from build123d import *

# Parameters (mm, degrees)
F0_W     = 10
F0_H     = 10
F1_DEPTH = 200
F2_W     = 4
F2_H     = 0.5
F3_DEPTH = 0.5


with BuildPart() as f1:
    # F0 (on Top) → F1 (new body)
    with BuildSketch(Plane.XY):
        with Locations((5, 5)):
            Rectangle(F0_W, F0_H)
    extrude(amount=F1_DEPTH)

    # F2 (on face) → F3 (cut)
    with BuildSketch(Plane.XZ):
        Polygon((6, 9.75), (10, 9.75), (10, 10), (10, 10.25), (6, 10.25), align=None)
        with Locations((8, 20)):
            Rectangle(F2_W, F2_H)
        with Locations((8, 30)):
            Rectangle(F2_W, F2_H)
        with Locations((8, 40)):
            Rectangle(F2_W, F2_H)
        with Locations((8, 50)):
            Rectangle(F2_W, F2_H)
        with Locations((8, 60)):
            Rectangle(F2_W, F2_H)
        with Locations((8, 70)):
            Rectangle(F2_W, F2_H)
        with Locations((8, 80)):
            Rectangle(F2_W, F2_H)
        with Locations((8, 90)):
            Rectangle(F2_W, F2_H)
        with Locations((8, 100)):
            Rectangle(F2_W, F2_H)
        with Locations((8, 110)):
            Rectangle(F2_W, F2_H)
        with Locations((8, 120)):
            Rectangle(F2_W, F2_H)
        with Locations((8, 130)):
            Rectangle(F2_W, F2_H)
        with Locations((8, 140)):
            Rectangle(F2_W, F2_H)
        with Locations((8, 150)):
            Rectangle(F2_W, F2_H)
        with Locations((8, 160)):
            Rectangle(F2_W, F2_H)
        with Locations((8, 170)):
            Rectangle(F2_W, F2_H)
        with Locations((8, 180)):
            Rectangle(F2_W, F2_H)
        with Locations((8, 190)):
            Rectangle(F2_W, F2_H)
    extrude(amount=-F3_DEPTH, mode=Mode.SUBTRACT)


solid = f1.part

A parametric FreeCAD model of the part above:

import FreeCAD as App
import Part
import Sketcher
from FreeCAD import Vector

doc = App.newDocument("Part")
body = doc.addObject("PartDesign::Body", "Body")

sketch1 = body.newObject("Sketcher::SketchObject", "Sketch")
sketch1.AttachmentSupport = (doc.getObject("XY_Plane"), [""])
sketch1.MapMode = "FlatFace"
sketch1.addGeometry([
    Part.LineSegment(Vector(0, 10, 0), Vector(0, 0, 0)),
    Part.LineSegment(Vector(0, 0, 0), Vector(10, 0, 0)),
    Part.LineSegment(Vector(10, 0, 0), Vector(10, 10, 0)),
    Part.LineSegment(Vector(10, 10, 0), Vector(0, 10, 0)),
], False)
sketch1.addConstraint([
    Sketcher.Constraint("Coincident", 0, 2, 1, 1),
    Sketcher.Constraint("Coincident", 1, 2, 2, 1),
    Sketcher.Constraint("Coincident", 2, 2, 3, 1),
    Sketcher.Constraint("Coincident", 3, 2, 0, 1),
    Sketcher.Constraint("Vertical", 0),
    Sketcher.Constraint("Horizontal", 1),
    Sketcher.Constraint("Vertical", 2),
    Sketcher.Constraint("Horizontal", 3),
    Sketcher.Constraint("Coincident", 0, 2, -1, 1),
    Sketcher.Constraint("Equal", 3, 0),
    Sketcher.Constraint("DistanceX", 1, 1, 1, 2, 10.0),
])
pad1 = body.newObject("PartDesign::Pad", "Pad")
pad1.Profile = sketch1
pad1.Length = 200

sketch2 = body.newObject("Sketcher::SketchObject", "Sketch001")
sketch2.AttachmentSupport = (doc.getObject("XZ_Plane"), [""])
sketch2.MapMode = "FlatFace"
sketch2.addGeometry([
    Part.LineSegment(Vector(6, 9.75, 0), Vector(10, 9.75, 0)),
    Part.LineSegment(Vector(10, 9.75, 0), Vector(10, 10.25, 0)),
    Part.LineSegment(Vector(10, 10.25, 0), Vector(6, 10.25, 0)),
    Part.LineSegment(Vector(6, 10.25, 0), Vector(6, 9.75, 0)),
    Part.LineSegment(Vector(6, 20.25, 0), Vector(6, 19.75, 0)),
    Part.LineSegment(Vector(6, 19.75, 0), Vector(10, 19.75, 0)),
    Part.LineSegment(Vector(10, 19.75, 0), Vector(10, 20.25, 0)),
    Part.LineSegment(Vector(10, 20.25, 0), Vector(6, 20.25, 0)),
    Part.LineSegment(Vector(6, 30.25, 0), Vector(6, 29.75, 0)),
    Part.LineSegment(Vector(6, 29.75, 0), Vector(10, 29.75, 0)),
    Part.LineSegment(Vector(10, 29.75, 0), Vector(10, 30.25, 0)),
    Part.LineSegment(Vector(10, 30.25, 0), Vector(6, 30.25, 0)),
    Part.LineSegment(Vector(6, 40.25, 0), Vector(6, 39.75, 0)),
    Part.LineSegment(Vector(6, 39.75, 0), Vector(10, 39.75, 0)),
    Part.LineSegment(Vector(10, 39.75, 0), Vector(10, 40.25, 0)),
    Part.LineSegment(Vector(10, 40.25, 0), Vector(6, 40.25, 0)),
    Part.LineSegment(Vector(6, 50.25, 0), Vector(6, 49.75, 0)),
    Part.LineSegment(Vector(6, 49.75, 0), Vector(10, 49.75, 0)),
    Part.LineSegment(Vector(10, 49.75, 0), Vector(10, 50.25, 0)),
    Part.LineSegment(Vector(10, 50.25, 0), Vector(6, 50.25, 0)),
    Part.LineSegment(Vector(6, 60.25, 0), Vector(6, 59.75, 0)),
    Part.LineSegment(Vector(6, 59.75, 0), Vector(10, 59.75, 0)),
    Part.LineSegment(Vector(10, 59.75, 0), Vector(10, 60.25, 0)),
    Part.LineSegment(Vector(10, 60.25, 0), Vector(6, 60.25, 0)),
    Part.LineSegment(Vector(6, 70.25, 0), Vector(6, 69.75, 0)),
    Part.LineSegment(Vector(6, 69.75, 0), Vector(10, 69.75, 0)),
    Part.LineSegment(Vector(10, 69.75, 0), Vector(10, 70.25, 0)),
    Part.LineSegment(Vector(10, 70.25, 0), Vector(6, 70.25, 0)),
    Part.LineSegment(Vector(6, 80.25, 0), Vector(6, 79.75, 0)),
    Part.LineSegment(Vector(6, 79.75, 0), Vector(10, 79.75, 0)),
    Part.LineSegment(Vector(10, 79.75, 0), Vector(10, 80.25, 0)),
    Part.LineSegment(Vector(10, 80.25, 0), Vector(6, 80.25, 0)),
    Part.LineSegment(Vector(6, 90.25, 0), Vector(6, 89.75, 0)),
    Part.LineSegment(Vector(6, 89.75, 0), Vector(10, 89.75, 0)),
    Part.LineSegment(Vector(10, 89.75, 0), Vector(10, 90.25, 0)),
    Part.LineSegment(Vector(10, 90.25, 0), Vector(6, 90.25, 0)),
    Part.LineSegment(Vector(6, 100.25, 0), Vector(6, 99.75, 0)),
    Part.LineSegment(Vector(6, 99.75, 0), Vector(10, 99.75, 0)),
    Part.LineSegment(Vector(10, 99.75, 0), Vector(10, 100.25, 0)),
    Part.LineSegment(Vector(10, 100.25, 0), Vector(6, 100.25, 0)),
    Part.LineSegment(Vector(6, 110.25, 0), Vector(6, 109.75, 0)),
    Part.LineSegment(Vector(6, 109.75, 0), Vector(10, 109.75, 0)),
    Part.LineSegment(Vector(10, 109.75, 0), Vector(10, 110.25, 0)),
    Part.LineSegment(Vector(10, 110.25, 0), Vector(6, 110.25, 0)),
    Part.LineSegment(Vector(6, 120.25, 0), Vector(6, 119.75, 0)),
    Part.LineSegment(Vector(6, 119.75, 0), Vector(10, 119.75, 0)),
    Part.LineSegment(Vector(10, 119.75, 0), Vector(10, 120.25, 0)),
    Part.LineSegment(Vector(10, 120.25, 0), Vector(6, 120.25, 0)),
    Part.LineSegment(Vector(6, 130.25, 0), Vector(6, 129.75, 0)),
    Part.LineSegment(Vector(6, 129.75, 0), Vector(10, 129.75, 0)),
    Part.LineSegment(Vector(10, 129.75, 0), Vector(10, 130.25, 0)),
    Part.LineSegment(Vector(10, 130.25, 0), Vector(6, 130.25, 0)),
    Part.LineSegment(Vector(6, 140.25, 0), Vector(6, 139.75, 0)),
    Part.LineSegment(Vector(6, 139.75, 0), Vector(10, 139.75, 0)),
    Part.LineSegment(Vector(10, 139.75, 0), Vector(10, 140.25, 0)),
    Part.LineSegment(Vector(10, 140.25, 0), Vector(6, 140.25, 0)),
    Part.LineSegment(Vector(6, 150.25, 0), Vector(6, 149.75, 0)),
    Part.LineSegment(Vector(6, 149.75, 0), Vector(10, 149.75, 0)),
    Part.LineSegment(Vector(10, 149.75, 0), Vector(10, 150.25, 0)),
    Part.LineSegment(Vector(10, 150.25, 0), Vector(6, 150.25, 0)),
    Part.LineSegment(Vector(6, 160.25, 0), Vector(6, 159.75, 0)),
    Part.LineSegment(Vector(6, 159.75, 0), Vector(10, 159.75, 0)),
    Part.LineSegment(Vector(10, 159.75, 0), Vector(10, 160.25, 0)),
    Part.LineSegment(Vector(10, 160.25, 0), Vector(6, 160.25, 0)),
    Part.LineSegment(Vector(6, 170.25, 0), Vector(6, 169.75, 0)),
    Part.LineSegment(Vector(6, 169.75, 0), Vector(10, 169.75, 0)),
    Part.LineSegment(Vector(10, 169.75, 0), Vector(10, 170.25, 0)),
    Part.LineSegment(Vector(10, 170.25, 0), Vector(6, 170.25, 0)),
    Part.LineSegment(Vector(6, 180.25, 0), Vector(6, 179.75, 0)),
    Part.LineSegment(Vector(6, 179.75, 0), Vector(10, 179.75, 0)),
    Part.LineSegment(Vector(10, 179.75, 0), Vector(10, 180.25, 0)),
    Part.LineSegment(Vector(10, 180.25, 0), Vector(6, 180.25, 0)),
    Part.LineSegment(Vector(6, 190.25, 0), Vector(6, 189.75, 0)),
    Part.LineSegment(Vector(6, 189.75, 0), Vector(10, 189.75, 0)),
    Part.LineSegment(Vector(10, 189.75, 0), Vector(10, 190.25, 0)),
    Part.LineSegment(Vector(10, 190.25, 0), Vector(6, 190.25, 0)),
], False)
sketch2.addConstraint([
    Sketcher.Constraint("Coincident", 0, 2, 1, 1),
    Sketcher.Constraint("Coincident", 1, 2, 2, 1),
    Sketcher.Constraint("Coincident", 2, 2, 3, 1),
    Sketcher.Constraint("Coincident", 3, 2, 0, 1),
    Sketcher.Constraint("Coincident", 4, 2, 5, 1),
    Sketcher.Constraint("Coincident", 5, 2, 6, 1),
    Sketcher.Constraint("Coincident", 6, 2, 7, 1),
    Sketcher.Constraint("Coincident", 7, 2, 4, 1),
    Sketcher.Constraint("Coincident", 8, 2, 9, 1),
    Sketcher.Constraint("Coincident", 9, 2, 10, 1),
    Sketcher.Constraint("Coincident", 10, 2, 11, 1),
    Sketcher.Constraint("Coincident", 11, 2, 8, 1),
    Sketcher.Constraint("Coincident", 12, 2, 13, 1),
    Sketcher.Constraint("Coincident", 13, 2, 14, 1),
    Sketcher.Constraint("Coincident", 14, 2, 15, 1),
    Sketcher.Constraint("Coincident", 15, 2, 12, 1),
    Sketcher.Constraint("Coincident", 16, 2, 17, 1),
    Sketcher.Constraint("Coincident", 17, 2, 18, 1),
    Sketcher.Constraint("Coincident", 18, 2, 19, 1),
    Sketcher.Constraint("Coincident", 19, 2, 16, 1),
    Sketcher.Constraint("Coincident", 20, 2, 21, 1),
    Sketcher.Constraint("Coincident", 21, 2, 22, 1),
    Sketcher.Constraint("Coincident", 22, 2, 23, 1),
    Sketcher.Constraint("Coincident", 23, 2, 20, 1),
    Sketcher.Constraint("Coincident", 24, 2, 25, 1),
    Sketcher.Constraint("Coincident", 25, 2, 26, 1),
    Sketcher.Constraint("Coincident", 26, 2, 27, 1),
    Sketcher.Constraint("Coincident", 27, 2, 24, 1),
    Sketcher.Constraint("Coincident", 28, 2, 29, 1),
    Sketcher.Constraint("Coincident", 29, 2, 30, 1),
    Sketcher.Constraint("Coincident", 30, 2, 31, 1),
    Sketcher.Constraint("Coincident", 31, 2, 28, 1),
    Sketcher.Constraint("Coincident", 32, 2, 33, 1),
    Sketcher.Constraint("Coincident", 33, 2, 34, 1),
    Sketcher.Constraint("Coincident", 34, 2, 35, 1),
    Sketcher.Constraint("Coincident", 35, 2, 32, 1),
    Sketcher.Constraint("Coincident", 36, 2, 37, 1),
    Sketcher.Constraint("Coincident", 37, 2, 38, 1),
    Sketcher.Constraint("Coincident", 38, 2, 39, 1),
    Sketcher.Constraint("Coincident", 39, 2, 36, 1),
    Sketcher.Constraint("Coincident", 40, 2, 41, 1),
    Sketcher.Constraint("Coincident", 41, 2, 42, 1),
    Sketcher.Constraint("Coincident", 42, 2, 43, 1),
    Sketcher.Constraint("Coincident", 43, 2, 40, 1),
    Sketcher.Constraint("Coincident", 44, 2, 45, 1),
    Sketcher.Constraint("Coincident", 45, 2, 46, 1),
    Sketcher.Constraint("Coincident", 46, 2, 47, 1),
    Sketcher.Constraint("Coincident", 47, 2, 44, 1),
    Sketcher.Constraint("Coincident", 48, 2, 49, 1),
    Sketcher.Constraint("Coincident", 49, 2, 50, 1),
    Sketcher.Constraint("Coincident", 50, 2, 51, 1),
    Sketcher.Constraint("Coincident", 51, 2, 48, 1),
    Sketcher.Constraint("Coincident", 52, 2, 53, 1),
    Sketcher.Constraint("Coincident", 53, 2, 54, 1),
    Sketcher.Constraint("Coincident", 54, 2, 55, 1),
    Sketcher.Constraint("Coincident", 55, 2, 52, 1),
    Sketcher.Constraint("Coincident", 56, 2, 57, 1),
    Sketcher.Constraint("Coincident", 57, 2, 58, 1),
    Sketcher.Constraint("Coincident", 58, 2, 59, 1),
    Sketcher.Constraint("Coincident", 59, 2, 56, 1),
    Sketcher.Constraint("Coincident", 60, 2, 61, 1),
    Sketcher.Constraint("Coincident", 61, 2, 62, 1),
    Sketcher.Constraint("Coincident", 62, 2, 63, 1),
    Sketcher.Constraint("Coincident", 63, 2, 60, 1),
    Sketcher.Constraint("Coincident", 64, 2, 65, 1),
    Sketcher.Constraint("Coincident", 65, 2, 66, 1),
    Sketcher.Constraint("Coincident", 66, 2, 67, 1),
    Sketcher.Constraint("Coincident", 67, 2, 64, 1),
    Sketcher.Constraint("Coincident", 68, 2, 69, 1),
    Sketcher.Constraint("Coincident", 69, 2, 70, 1),
    Sketcher.Constraint("Coincident", 70, 2, 71, 1),
    Sketcher.Constraint("Coincident", 71, 2, 68, 1),
    Sketcher.Constraint("Coincident", 72, 2, 73, 1),
    Sketcher.Constraint("Coincident", 73, 2, 74, 1),
    Sketcher.Constraint("Coincident", 74, 2, 75, 1),
    Sketcher.Constraint("Coincident", 75, 2, 72, 1),
    Sketcher.Constraint("Horizontal", 0),
    Sketcher.Constraint("Vertical", 1),
    Sketcher.Constraint("Horizontal", 2),
    Sketcher.Constraint("Vertical", 3),
    Sketcher.Constraint("Vertical", 4),
    Sketcher.Constraint("Horizontal", 5),
    Sketcher.Constraint("Vertical", 6),
    Sketcher.Constraint("Horizontal", 7),
    Sketcher.Constraint("Vertical", 8),
    Sketcher.Constraint("Horizontal", 9),
    Sketcher.Constraint("Vertical", 10),
    Sketcher.Constraint("Horizontal", 11),
    Sketcher.Constraint("Vertical", 12),
    Sketcher.Constraint("Horizontal", 13),
    Sketcher.Constraint("Vertical", 14),
    Sketcher.Constraint("Horizontal", 15),
    Sketcher.Constraint("Vertical", 16),
    Sketcher.Constraint("Horizontal", 17),
    Sketcher.Constraint("Vertical", 18),
    Sketcher.Constraint("Horizontal", 19),
    Sketcher.Constraint("Vertical", 20),
    Sketcher.Constraint("Horizontal", 21),
    Sketcher.Constraint("Vertical", 22),
    Sketcher.Constraint("Horizontal", 23),
    Sketcher.Constraint("Vertical", 24),
    Sketcher.Constraint("Horizontal", 25),
    Sketcher.Constraint("Vertical", 26),
    Sketcher.Constraint("Horizontal", 27),
    Sketcher.Constraint("Vertical", 28),
    Sketcher.Constraint("Horizontal", 29),
    Sketcher.Constraint("Vertical", 30),
    Sketcher.Constraint("Horizontal", 31),
    Sketcher.Constraint("Vertical", 32),
    Sketcher.Constraint("Horizontal", 33),
    Sketcher.Constraint("Vertical", 34),
    Sketcher.Constraint("Horizontal", 35),
    Sketcher.Constraint("Vertical", 36),
    Sketcher.Constraint("Horizontal", 37),
    Sketcher.Constraint("Vertical", 38),
    Sketcher.Constraint("Horizontal", 39),
    Sketcher.Constraint("Vertical", 40),
    Sketcher.Constraint("Horizontal", 41),
    Sketcher.Constraint("Vertical", 42),
    Sketcher.Constraint("Horizontal", 43),
    Sketcher.Constraint("Vertical", 44),
    Sketcher.Constraint("Horizontal", 45),
    Sketcher.Constraint("Vertical", 46),
    Sketcher.Constraint("Horizontal", 47),
    Sketcher.Constraint("Vertical", 48),
    Sketcher.Constraint("Horizontal", 49),
    Sketcher.Constraint("Vertical", 50),
    Sketcher.Constraint("Horizontal", 51),
    Sketcher.Constraint("Vertical", 52),
    Sketcher.Constraint("Horizontal", 53),
    Sketcher.Constraint("Vertical", 54),
    Sketcher.Constraint("Horizontal", 55),
    Sketcher.Constraint("Vertical", 56),
    Sketcher.Constraint("Horizontal", 57),
    Sketcher.Constraint("Vertical", 58),
    Sketcher.Constraint("Horizontal", 59),
    Sketcher.Constraint("Vertical", 60),
    Sketcher.Constraint("Horizontal", 61),
    Sketcher.Constraint("Vertical", 62),
    Sketcher.Constraint("Horizontal", 63),
    Sketcher.Constraint("Vertical", 64),
    Sketcher.Constraint("Horizontal", 65),
    Sketcher.Constraint("Vertical", 66),
    Sketcher.Constraint("Horizontal", 67),
    Sketcher.Constraint("Vertical", 68),
    Sketcher.Constraint("Horizontal", 69),
    Sketcher.Constraint("Vertical", 70),
    Sketcher.Constraint("Horizontal", 71),
    Sketcher.Constraint("Vertical", 72),
    Sketcher.Constraint("Horizontal", 73),
    Sketcher.Constraint("Vertical", 74),
    Sketcher.Constraint("Horizontal", 75),
    Sketcher.Constraint("Vertical", 3, 2, 4, 2),
    Sketcher.Constraint("Vertical", 1, 2, 5, 2),
    Sketcher.Constraint("Vertical", 7, 2, 8, 2),
    Sketcher.Constraint("Vertical", 6, 2, 9, 2),
    Sketcher.Constraint("Vertical", 11, 2, 12, 2),
    Sketcher.Constraint("Vertical", 10, 2, 13, 2),
    Sketcher.Constraint("Vertical", 15, 2, 16, 2),
    Sketcher.Constraint("Vertical", 14, 2, 17, 2),
    Sketcher.Constraint("Vertical", 19, 2, 20, 2),
    Sketcher.Constraint("Vertical", 18, 2, 21, 2),
    Sketcher.Constraint("Vertical", 23, 2, 24, 2),
    Sketcher.Constraint("Vertical", 22, 2, 25, 2),
    Sketcher.Constraint("Vertical", 27, 2, 28, 2),
    Sketcher.Constraint("Vertical", 26, 2, 29, 2),
    Sketcher.Constraint("Vertical", 31, 2, 32, 2),
    Sketcher.Constraint("Vertical", 30, 2, 33, 2),
    Sketcher.Constraint("Vertical", 35, 2, 36, 2),
    Sketcher.Constraint("Vertical", 34, 2, 37, 2),
    Sketcher.Constraint("Vertical", 39, 2, 40, 2),
    Sketcher.Constraint("Vertical", 38, 2, 41, 2),
    Sketcher.Constraint("Vertical", 43, 2, 44, 2),
    Sketcher.Constraint("Vertical", 42, 2, 45, 2),
    Sketcher.Constraint("Vertical", 47, 2, 48, 2),
    Sketcher.Constraint("Vertical", 46, 2, 49, 2),
    Sketcher.Constraint("Vertical", 51, 2, 52, 2),
    Sketcher.Constraint("Vertical", 50, 2, 53, 2),
    Sketcher.Constraint("Vertical", 55, 2, 56, 2),
    Sketcher.Constraint("Vertical", 54, 2, 57, 2),
    Sketcher.Constraint("Vertical", 59, 2, 60, 2),
    Sketcher.Constraint("Vertical", 58, 2, 61, 2),
    Sketcher.Constraint("Vertical", 63, 2, 64, 2),
    Sketcher.Constraint("Vertical", 62, 2, 65, 2),
    Sketcher.Constraint("Vertical", 67, 2, 68, 2),
    Sketcher.Constraint("Vertical", 66, 2, 69, 2),
    Sketcher.Constraint("Vertical", 71, 2, 72, 2),
    Sketcher.Constraint("Vertical", 70, 2, 73, 2),
    Sketcher.Constraint("Equal", 3, 4),
    Sketcher.Constraint("Equal", 6, 8),
    Sketcher.Constraint("Equal", 10, 12),
    Sketcher.Constraint("Equal", 14, 16),
    Sketcher.Constraint("Equal", 18, 20),
    Sketcher.Constraint("Equal", 22, 24),
    Sketcher.Constraint("Equal", 26, 28),
    Sketcher.Constraint("Equal", 30, 32),
    Sketcher.Constraint("Equal", 34, 36),
    Sketcher.Constraint("Equal", 38, 40),
    Sketcher.Constraint("Equal", 42, 44),
    Sketcher.Constraint("Equal", 46, 48),
    Sketcher.Constraint("Equal", 50, 52),
    Sketcher.Constraint("Equal", 54, 56),
    Sketcher.Constraint("Equal", 58, 60),
    Sketcher.Constraint("Equal", 62, 64),
    Sketcher.Constraint("Equal", 66, 68),
    Sketcher.Constraint("Equal", 70, 72),
    Sketcher.Constraint("DistanceX", 0, 1, 0, 2, 4.0),
    Sketcher.Constraint("DistanceY", 1, 1, 1, 2, 0.5),
    Sketcher.Constraint("DistanceX", -1, 1, 0, 2, 10.0),
    Sketcher.Constraint("DistanceY", -1, 1, 0, 2, 9.75),
    Sketcher.Constraint("DistanceY", -1, 1, 4, 2, 19.75),
    Sketcher.Constraint("DistanceY", -1, 1, 8, 2, 29.75),
    Sketcher.Constraint("DistanceY", -1, 1, 12, 2, 39.75),
    Sketcher.Constraint("DistanceY", -1, 1, 16, 2, 49.75),
    Sketcher.Constraint("DistanceY", -1, 1, 20, 2, 59.75),
    Sketcher.Constraint("DistanceY", -1, 1, 24, 2, 69.75),
    Sketcher.Constraint("DistanceY", -1, 1, 28, 2, 79.75),
    Sketcher.Constraint("DistanceY", -1, 1, 32, 2, 89.75),
    Sketcher.Constraint("DistanceY", -1, 1, 36, 2, 99.75),
    Sketcher.Constraint("DistanceY", -1, 1, 40, 2, 109.75),
    Sketcher.Constraint("DistanceY", -1, 1, 44, 2, 119.75),
    Sketcher.Constraint("DistanceY", -1, 1, 48, 2, 129.75),
    Sketcher.Constraint("DistanceY", -1, 1, 52, 2, 139.75),
    Sketcher.Constraint("DistanceY", -1, 1, 56, 2, 149.75),
    Sketcher.Constraint("DistanceY", -1, 1, 60, 2, 159.75),
    Sketcher.Constraint("DistanceY", -1, 1, 64, 2, 169.75),
    Sketcher.Constraint("DistanceY", -1, 1, 68, 2, 179.75),
    Sketcher.Constraint("DistanceY", -1, 1, 72, 2, 189.75),
])
pocket1 = body.newObject("PartDesign::Pocket", "Pocket")
pocket1.Profile = sketch2
pocket1.Length = 0.5

doc.recompute()
